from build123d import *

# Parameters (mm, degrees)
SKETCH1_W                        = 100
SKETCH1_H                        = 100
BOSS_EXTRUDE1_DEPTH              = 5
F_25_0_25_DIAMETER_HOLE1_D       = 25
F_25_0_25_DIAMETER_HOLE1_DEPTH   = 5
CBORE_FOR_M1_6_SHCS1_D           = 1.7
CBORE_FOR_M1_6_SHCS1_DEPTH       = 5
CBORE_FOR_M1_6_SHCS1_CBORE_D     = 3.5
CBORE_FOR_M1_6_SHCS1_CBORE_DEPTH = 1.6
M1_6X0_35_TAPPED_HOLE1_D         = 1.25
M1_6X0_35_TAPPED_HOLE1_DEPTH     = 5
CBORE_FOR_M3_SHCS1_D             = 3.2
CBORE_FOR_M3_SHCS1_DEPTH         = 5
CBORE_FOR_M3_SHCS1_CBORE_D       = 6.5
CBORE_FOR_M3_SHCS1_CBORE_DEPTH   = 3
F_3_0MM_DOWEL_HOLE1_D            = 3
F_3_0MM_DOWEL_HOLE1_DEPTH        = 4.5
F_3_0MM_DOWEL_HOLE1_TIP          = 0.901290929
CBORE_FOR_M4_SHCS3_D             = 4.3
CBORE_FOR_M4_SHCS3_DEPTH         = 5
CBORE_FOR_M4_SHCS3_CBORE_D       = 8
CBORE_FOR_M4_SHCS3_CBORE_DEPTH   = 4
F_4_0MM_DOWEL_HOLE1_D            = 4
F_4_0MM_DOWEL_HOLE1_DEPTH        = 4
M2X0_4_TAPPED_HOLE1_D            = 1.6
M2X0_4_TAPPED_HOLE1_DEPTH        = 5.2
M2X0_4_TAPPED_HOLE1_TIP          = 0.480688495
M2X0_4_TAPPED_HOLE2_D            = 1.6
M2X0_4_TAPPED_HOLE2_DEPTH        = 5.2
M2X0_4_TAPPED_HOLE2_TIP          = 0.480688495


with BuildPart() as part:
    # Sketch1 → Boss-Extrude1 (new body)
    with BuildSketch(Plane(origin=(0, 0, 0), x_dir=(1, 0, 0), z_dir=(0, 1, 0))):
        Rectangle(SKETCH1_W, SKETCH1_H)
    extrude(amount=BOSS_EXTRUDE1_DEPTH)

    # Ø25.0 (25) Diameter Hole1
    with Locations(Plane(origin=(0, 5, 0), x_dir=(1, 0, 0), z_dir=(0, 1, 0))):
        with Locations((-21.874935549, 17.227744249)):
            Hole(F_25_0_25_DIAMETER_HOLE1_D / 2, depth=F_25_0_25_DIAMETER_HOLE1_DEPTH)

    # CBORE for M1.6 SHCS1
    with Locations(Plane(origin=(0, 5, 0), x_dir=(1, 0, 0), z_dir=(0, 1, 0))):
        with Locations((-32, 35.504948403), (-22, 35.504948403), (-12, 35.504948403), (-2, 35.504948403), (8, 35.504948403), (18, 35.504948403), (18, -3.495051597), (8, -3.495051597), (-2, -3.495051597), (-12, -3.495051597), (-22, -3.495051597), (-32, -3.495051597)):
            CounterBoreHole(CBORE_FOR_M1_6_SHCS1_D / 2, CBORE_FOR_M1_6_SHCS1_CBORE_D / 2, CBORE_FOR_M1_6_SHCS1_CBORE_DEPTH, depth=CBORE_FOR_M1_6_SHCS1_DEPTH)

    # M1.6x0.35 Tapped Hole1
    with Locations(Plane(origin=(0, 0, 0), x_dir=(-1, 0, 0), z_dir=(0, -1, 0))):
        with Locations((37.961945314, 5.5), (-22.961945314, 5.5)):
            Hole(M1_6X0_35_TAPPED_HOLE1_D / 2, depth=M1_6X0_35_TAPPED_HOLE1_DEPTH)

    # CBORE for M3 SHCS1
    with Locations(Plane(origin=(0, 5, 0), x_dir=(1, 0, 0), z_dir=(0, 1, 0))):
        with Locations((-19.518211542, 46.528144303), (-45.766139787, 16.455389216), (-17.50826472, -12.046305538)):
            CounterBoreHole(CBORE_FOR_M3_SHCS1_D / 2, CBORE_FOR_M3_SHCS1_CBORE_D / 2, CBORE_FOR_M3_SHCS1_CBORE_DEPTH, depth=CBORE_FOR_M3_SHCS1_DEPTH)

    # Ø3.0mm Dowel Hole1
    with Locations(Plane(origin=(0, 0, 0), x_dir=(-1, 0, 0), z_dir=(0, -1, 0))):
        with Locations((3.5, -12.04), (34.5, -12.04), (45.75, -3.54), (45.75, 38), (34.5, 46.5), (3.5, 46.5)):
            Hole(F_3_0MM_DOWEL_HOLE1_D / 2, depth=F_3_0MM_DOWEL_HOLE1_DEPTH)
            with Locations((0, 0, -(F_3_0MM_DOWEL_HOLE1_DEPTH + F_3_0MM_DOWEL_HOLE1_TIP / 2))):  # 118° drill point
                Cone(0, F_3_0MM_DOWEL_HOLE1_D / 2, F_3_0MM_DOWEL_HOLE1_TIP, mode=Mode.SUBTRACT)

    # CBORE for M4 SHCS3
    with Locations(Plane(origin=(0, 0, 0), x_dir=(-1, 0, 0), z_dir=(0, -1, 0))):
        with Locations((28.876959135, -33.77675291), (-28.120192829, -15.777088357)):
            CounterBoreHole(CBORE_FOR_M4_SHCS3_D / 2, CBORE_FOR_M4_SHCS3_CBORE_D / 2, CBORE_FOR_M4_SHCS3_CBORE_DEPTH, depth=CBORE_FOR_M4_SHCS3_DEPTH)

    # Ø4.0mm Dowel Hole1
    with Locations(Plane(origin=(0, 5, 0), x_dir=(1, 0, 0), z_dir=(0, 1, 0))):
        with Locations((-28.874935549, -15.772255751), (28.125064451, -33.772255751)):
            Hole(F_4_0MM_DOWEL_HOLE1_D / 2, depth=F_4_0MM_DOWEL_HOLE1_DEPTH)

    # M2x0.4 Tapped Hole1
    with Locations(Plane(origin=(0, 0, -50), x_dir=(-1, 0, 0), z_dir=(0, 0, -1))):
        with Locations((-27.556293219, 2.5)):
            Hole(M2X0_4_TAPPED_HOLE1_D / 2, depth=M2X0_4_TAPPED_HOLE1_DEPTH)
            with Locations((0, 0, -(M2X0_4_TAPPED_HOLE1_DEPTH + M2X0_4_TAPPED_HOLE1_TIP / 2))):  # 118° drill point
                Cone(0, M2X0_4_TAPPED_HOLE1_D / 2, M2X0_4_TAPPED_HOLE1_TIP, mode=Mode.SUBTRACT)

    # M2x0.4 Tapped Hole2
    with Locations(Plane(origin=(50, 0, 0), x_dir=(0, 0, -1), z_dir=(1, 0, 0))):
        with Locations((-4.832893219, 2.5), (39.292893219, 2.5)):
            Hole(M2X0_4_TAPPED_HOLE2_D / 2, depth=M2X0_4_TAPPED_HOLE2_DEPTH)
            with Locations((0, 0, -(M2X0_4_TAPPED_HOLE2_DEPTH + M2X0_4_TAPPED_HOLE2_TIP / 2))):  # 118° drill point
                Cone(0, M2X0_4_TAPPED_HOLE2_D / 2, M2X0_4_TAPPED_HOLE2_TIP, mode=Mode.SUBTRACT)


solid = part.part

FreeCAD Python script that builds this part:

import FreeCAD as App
import Part
import Sketcher
Q = App.Units.Quantity


def add_polygon(sketch, points):
    """Adds a closed chain of lines whose ends are joined by coincident constraints."""
    first, n = sketch.GeometryCount, len(points)
    for a, b in zip(points, points[1:] + points[:1]):
        sketch.addGeometry(Part.LineSegment(App.Vector(*a, 0), App.Vector(*b, 0)), False)
    for i in range(n):
        sketch.addConstraint(Sketcher.Constraint("Coincident", first + i, 2, first + (i + 1) % n, 1))

doc = App.newDocument("Part")
body = doc.addObject("PartDesign::Body", "Body")

sketch1 = body.newObject("Sketcher::SketchObject", "Sketch")
sketch1.AttachmentSupport = (doc.getObject("XZ_Plane"), [""])
sketch1.MapMode = "FlatFace"
add_polygon(sketch1, [(-50, -50), (-50, 50), (50, 50), (50, -50)])
sketch1.addConstraint(Sketcher.Constraint("Vertical", 0))
sketch1.addConstraint(Sketcher.Constraint("Horizontal", 1))
sketch1.addConstraint(Sketcher.Constraint("Vertical", 2))
sketch1.addConstraint(Sketcher.Constraint("Horizontal", 3))
sketch1.addConstraint(Sketcher.Constraint("Symmetric", 0, 2, 2, 2, -1, 1))
sketch1.addConstraint(Sketcher.Constraint("Equal", 3, 0))
sketch1.addConstraint(Sketcher.Constraint("DistanceX", 1, 1, 1, 2, Q("100 mm")))
pad1 = body.newObject("PartDesign::Pad", "Pad")
pad1.Profile = sketch1
pad1.Length = 5
pad1.Reversed = True

sketch2 = body.newObject("Sketcher::SketchObject", "Sketch001")
sketch2.AttachmentSupport = (doc.getObject("XZ_Plane"), [""])
sketch2.MapMode = "FlatFace"
sketch2.AttachmentOffset = App.Placement(App.Vector(0, 0, -5), App.Rotation())
sketch2.addGeometry(Part.Circle(App.Vector(-22, -17, 0), App.Vector(0, 0, 1), 12), False)
sketch2.addConstraint(Sketcher.Constraint("Diameter", 0, Q("25 mm")))
sketch2.addConstraint(Sketcher.Constraint("DistanceX", 0, 3, -1, 1, Q("21.874936 mm")))
sketch2.addConstraint(Sketcher.Constraint("DistanceY", 0, 3, -1, 1, Q("17.227744 mm")))
doc.recompute()
hole = body.newObject("PartDesign::Hole", "Hole")
hole.Profile = sketch2
hole.ThreadType = "None"
hole.Diameter = 25
hole.DepthType = "Dimension"
hole.Depth = 5
hole.DrillPoint = "Flat"
hole.Reversed = True

sketch3 = body.newObject("Sketcher::SketchObject", "Sketch002")
sketch3.AttachmentSupport = (doc.getObject("XZ_Plane"), [""])
sketch3.MapMode = "FlatFace"
sketch3.AttachmentOffset = App.Placement(App.Vector(0, 0, -5), App.Rotation())
sketch3.addGeometry(Part.Circle(App.Vector(-32, -35.5, 0), App.Vector(0, 0, 1), 0.8), False)
sketch3.addGeometry(Part.Circle(App.Vector(-22, -35.5, 0), App.Vector(0, 0, 1), 0.8), False)
sketch3.addGeometry(Part.Circle(App.Vector(-12, -35.5, 0), App.Vector(0, 0, 1), 0.8), False)
sketch3.addGeometry(Part.Circle(App.Vector(-2, -35.5, 0), App.Vector(0, 0, 1), 0.8), False)
sketch3.addGeometry(Part.Circle(App.Vector(8, -35.5, 0), App.Vector(0, 0, 1), 0.8), False)
sketch3.addGeometry(Part.Circle(App.Vector(18, -35.5, 0), App.Vector(0, 0, 1), 0.8), False)
sketch3.addGeometry(Part.Circle(App.Vector(18, 3.5, 0), App.Vector(0, 0, 1), 0.8), False)
sketch3.addGeometry(Part.Circle(App.Vector(8, 3.5, 0), App.Vector(0, 0, 1), 0.8), False)
sketch3.addGeometry(Part.Circle(App.Vector(-2, 3.5, 0), App.Vector(0, 0, 1), 0.8), False)
sketch3.addGeometry(Part.Circle(App.Vector(-12, 3.5, 0), App.Vector(0, 0, 1), 0.8), False)
sketch3.addGeometry(Part.Circle(App.Vector(-22, 3.5, 0), App.Vector(0, 0, 1), 0.8), False)
sketch3.addGeometry(Part.Circle(App.Vector(-32, 3.5, 0), App.Vector(0, 0, 1), 0.8), False)
sketch3.addConstraint(Sketcher.Constraint("Equal", 0, 1))
sketch3.addConstraint(Sketcher.Constraint("Equal", 1, 2))
sketch3.addConstraint(Sketcher.Constraint("Equal", 2, 3))
sketch3.addConstraint(Sketcher.Constraint("Equal", 3, 4))
sketch3.addConstraint(Sketcher.Constraint("Equal", 4, 5))
sketch3.addConstraint(Sketcher.Constraint("Equal", 5, 6))
sketch3.addConstraint(Sketcher.Constraint("Equal", 6, 7))
sketch3.addConstraint(Sketcher.Constraint("Equal", 7, 8))
sketch3.addConstraint(Sketcher.Constraint("Equal", 8, 9))
sketch3.addConstraint(Sketcher.Constraint("Equal", 9, 10))
sketch3.addConstraint(Sketcher.Constraint("Equal", 10, 11))
sketch3.addConstraint(Sketcher.Constraint("Horizontal", 0, 3, 1, 3))
sketch3.addConstraint(Sketcher.Constraint("Horizontal", 1, 3, 2, 3))
sketch3.addConstraint(Sketcher.Constraint("Horizontal", 2, 3, 3, 3))
sketch3.addConstraint(Sketcher.Constraint("Horizontal", 3, 3, 4, 3))
sketch3.addConstraint(Sketcher.Constraint("Horizontal", 4, 3, 5, 3))
sketch3.addConstraint(Sketcher.Constraint("Horizontal", 6, 3, 7, 3))
sketch3.addConstraint(Sketcher.Constraint("Horizontal", 7, 3, 8, 3))
sketch3.addConstraint(Sketcher.Constraint("Horizontal", 8, 3, 9, 3))
sketch3.addConstraint(Sketcher.Constraint("Horizontal", 9, 3, 10, 3))
sketch3.addConstraint(Sketcher.Constraint("Horizontal", 10, 3, 11, 3))
sketch3.addConstraint(Sketcher.Constraint("Vertical", 5, 3, 6, 3))
sketch3.addConstraint(Sketcher.Constraint("Vertical", 4, 3, 7, 3))
sketch3.addConstraint(Sketcher.Constraint("Vertical", 3, 3, 8, 3))
sketch3.addConstraint(Sketcher.Constraint("Vertical", 2, 3, 9, 3))
sketch3.addConstraint(Sketcher.Constraint("Vertical", 1, 3, 10, 3))
sketch3.addConstraint(Sketcher.Constraint("Vertical", 0, 3, 11, 3))
sketch3.addConstraint(Sketcher.Constraint("Diameter", 0, Q("1.7 mm")))
sketch3.addConstraint(Sketcher.Constraint("DistanceX", 0, 3, -1, 1, Q("32 mm")))
sketch3.addConstraint(Sketcher.Constraint("DistanceX", 1, 3, -1, 1, Q("22 mm")))
sketch3.addConstraint(Sketcher.Constraint("DistanceX", 2, 3, -1, 1, Q("12 mm")))
sketch3.addConstraint(Sketcher.Constraint("DistanceX", 3, 3, -1, 1, Q("2 mm")))
sketch3.addConstraint(Sketcher.Constraint("DistanceX", -1, 1, 4, 3, Q("8 mm")))
sketch3.addConstraint(Sketcher.Constraint("DistanceX", -1, 1, 5, 3, Q("18 mm")))
sketch3.addConstraint(Sketcher.Constraint("DistanceY", 5, 3, 6, 3, Q("39 mm")))
sketch3.addConstraint(Sketcher.Constraint("DistanceY", 0, 3, -1, 1, Q("35.504948 mm")))
doc.recompute()
hole2 = body.newObject("PartDesign::Hole", "Hole001")
hole2.Profile = sketch3
hole2.ThreadType = "None"
hole2.Diameter = 1.7
hole2.DepthType = "Dimension"
hole2.Depth = 5
hole2.DrillPoint = "Flat"
hole2.HoleCutType = "Counterbore"
hole2.HoleCutDiameter = 3.5
hole2.HoleCutDepth = 1.6
hole2.Reversed = True

sketch4 = body.newObject("Sketcher::SketchObject", "Sketch003")
sketch4.AttachmentSupport = (doc.getObject("XZ_Plane"), [""])
sketch4.MapMode = "FlatFace"
sketch4.addGeometry(Part.Circle(App.Vector(-38, -5.5, 0), App.Vector(0, 0, 1), 0.6), False)
sketch4.addGeometry(Part.Circle(App.Vector(23, -5.5, 0), App.Vector(0, 0, 1), 0.6), False)
sketch4.addConstraint(Sketcher.Constraint("Equal", 0, 1))
sketch4.addConstraint(Sketcher.Constraint("Horizontal", 0, 3, 1, 3))
sketch4.addConstraint(Sketcher.Constraint("Diameter", 0, Q("1.25 mm")))
sketch4.addConstraint(Sketcher.Constraint("DistanceY", 0, 3, -1, 1, Q("5.5 mm")))
sketch4.addConstraint(Sketcher.Constraint("DistanceX", 0, 3, 1, 3, Q("60.923891 mm")))
sketch4.addConstraint(Sketcher.Constraint("DistanceX", 0, 3, -1, 1, Q("37.961945 mm")))
doc.recompute()
hole3 = body.newObject("PartDesign::Hole", "Hole002")
hole3.Profile = sketch4
hole3.ThreadType = "None"
hole3.Diameter = 1.25
hole3.DepthType = "Dimension"
hole3.Depth = 5
hole3.DrillPoint = "Flat"

sketch5 = body.newObject("Sketcher::SketchObject", "Sketch004")
sketch5.AttachmentSupport = (doc.getObject("XZ_Plane"), [""])
sketch5.MapMode = "FlatFace"
sketch5.AttachmentOffset = App.Placement(App.Vector(0, 0, -5), App.Rotation())
sketch5.addGeometry(Part.Circle(App.Vector(-19.5, -46.5, 0), App.Vector(0, 0, 1), 1.6), False)
sketch5.addGeometry(Part.Circle(App.Vector(-45.8, -16.5, 0), App.Vector(0, 0, 1), 1.6), False)
sketch5.addGeometry(Part.Circle(App.Vector(-17.5, 12, 0), App.Vector(0, 0, 1), 1.6), False)
sketch5.addConstraint(Sketcher.Constraint("Equal", 0, 1))
sketch5.addConstraint(Sketcher.Constraint("Equal", 1, 2))
sketch5.addConstraint(Sketcher.Constraint("Diameter", 0, Q("3.2 mm")))
sketch5.addConstraint(Sketcher.Constraint("DistanceX", 0, 3, -1, 1, Q("19.518212 mm")))
sketch5.addConstraint(Sketcher.Constraint("DistanceX", 1, 3, -1, 1, Q("45.76614 mm")))
sketch5.addConstraint(Sketcher.Constraint("DistanceY", 1, 3, -1, 1, Q("16.455389 mm")))
sketch5.addConstraint(Sketcher.Constraint("DistanceY", 0, 3, 2, 3, Q("58.57445 mm")))
sketch5.addConstraint(Sketcher.Constraint("DistanceY", 0, 3, -1, 1, Q("46.528144 mm")))
sketch5.addConstraint(Sketcher.Constraint("DistanceX", 2, 3, -1, 1, Q("17.508265 mm")))
doc.recompute()
hole4 = body.newObject("PartDesign::Hole", "Hole003")
hole4.Profile = sketch5
hole4.ThreadType = "None"
hole4.Diameter = 3.2
hole4.DepthType = "Dimension"
hole4.Depth = 5
hole4.DrillPoint = "Flat"
hole4.HoleCutType = "Counterbore"
hole4.HoleCutDiameter = 6.5
hole4.HoleCutDepth = 3
hole4.Reversed = True

sketch6 = body.newObject("Sketcher::SketchObject", "Sketch005")
sketch6.AttachmentSupport = (doc.getObject("XZ_Plane"), [""])
sketch6.MapMode = "FlatFace"
sketch6.addGeometry(Part.Circle(App.Vector(-3.5, 12, 0), App.Vector(0, 0, 1), 1.5), False)
sketch6.addGeometry(Part.Circle(App.Vector(-34.5, 12, 0), App.Vector(0, 0, 1), 1.5), False)
sketch6.addGeometry(Part.Circle(App.Vector(-45.8, 3.5, 0), App.Vector(0, 0, 1), 1.5), False)
sketch6.addGeometry(Part.Circle(App.Vector(-45.8, -38, 0), App.Vector(0, 0, 1), 1.5), False)
sketch6.addGeometry(Part.Circle(App.Vector(-34.5, -46.5, 0), App.Vector(0, 0, 1), 1.5), False)
sketch6.addGeometry(Part.Circle(App.Vector(-3.5, -46.5, 0), App.Vector(0, 0, 1), 1.5), False)
sketch6.addConstraint(Sketcher.Constraint("Equal", 0, 1))
sketch6.addConstraint(Sketcher.Constraint("Equal", 1, 2))
sketch6.addConstraint(Sketcher.Constraint("Equal", 2, 3))
sketch6.addConstraint(Sketcher.Constraint("Equal", 3, 4))
sketch6.addConstraint(Sketcher.Constraint("Equal", 4, 5))
sketch6.addConstraint(Sketcher.Constraint("Horizontal", 0, 3, 1, 3))
sketch6.addConstraint(Sketcher.Constraint("Horizontal", 4, 3, 5, 3))
sketch6.addConstraint(Sketcher.Constraint("Vertical", 2, 3, 3, 3))
sketch6.addConstraint(Sketcher.Constraint("Vertical", 1, 3, 4, 3))
sketch6.addConstraint(Sketcher.Constraint("Vertical", 0, 3, 5, 3))
sketch6.addConstraint(Sketcher.Constraint("Diameter", 0, Q("3 mm")))
sketch6.addConstraint(Sketcher.Constraint("DistanceY", 3, 3, -1, 1, Q("38 mm")))
sketch6.addConstraint(Sketcher.Constraint("DistanceX", 1, 3, 0, 3, Q("31 mm")))
sketch6.addConstraint(Sketcher.Constraint("DistanceX", 0, 3, -1, 1, Q("3.5 mm")))
sketch6.addConstraint(Sketcher.Constraint("DistanceY", 4, 3, -1, 1, Q("46.5 mm")))
sketch6.addConstraint(Sketcher.Constraint("DistanceY", 2, 3, 1, 3, Q("8.5 mm")))
sketch6.addConstraint(Sketcher.Constraint("DistanceY", -1, 1, 0, 3, Q("12.04 mm")))
sketch6.addConstraint(Sketcher.Constraint("DistanceX", 2, 3, -1, 1, Q("45.75 mm")))
doc.recompute()
hole5 = body.newObject("PartDesign::Hole", "Hole004")
hole5.Profile = sketch6
hole5.ThreadType = "None"
hole5.Diameter = 3
hole5.DepthType = "Dimension"
hole5.Depth = 4.5
hole5.DrillPoint = "Angled"
hole5.DrillPointAngle = 118

sketch7 = body.newObject("Sketcher::SketchObject", "Sketch006")
sketch7.AttachmentSupport = (doc.getObject("XZ_Plane"), [""])
sketch7.MapMode = "FlatFace"
sketch7.addGeometry(Part.Circle(App.Vector(-28.9, 33.8, 0), App.Vector(0, 0, 1), 2.1), False)
sketch7.addGeometry(Part.Circle(App.Vector(28.1, 15.8, 0), App.Vector(0, 0, 1), 2.1), False)
sketch7.addConstraint(Sketcher.Constraint("Equal", 0, 1))
sketch7.addConstraint(Sketcher.Constraint("Diameter", 0, Q("4.3 mm")))
sketch7.addConstraint(Sketcher.Constraint("DistanceX", 0, 3, -1, 1, Q("28.876959 mm")))
sketch7.addConstraint(Sketcher.Constraint("DistanceY", -1, 1, 1, 3, Q("15.777088 mm")))
sketch7.addConstraint(Sketcher.Constraint("DistanceX", 0, 3, 1, 3, Q("56.997152 mm")))
sketch7.addConstraint(Sketcher.Constraint("DistanceY", -1, 1, 0, 3, Q("33.776753 mm")))
doc.recompute()
hole6 = body.newObject("PartDesign::Hole", "Hole005")
hole6.Profile = sketch7
hole6.ThreadType = "None"
hole6.Diameter = 4.3
hole6.DepthType = "Dimension"
hole6.Depth = 5
hole6.DrillPoint = "Flat"
hole6.HoleCutType = "Counterbore"
hole6.HoleCutDiameter = 8
hole6.HoleCutDepth = 4

sketch8 = body.newObject("Sketcher::SketchObject", "Sketch007")
sketch8.AttachmentSupport = (doc.getObject("XZ_Plane"), [""])
sketch8.MapMode = "FlatFace"
sketch8.AttachmentOffset = App.Placement(App.Vector(0, 0, -5), App.Rotation())
sketch8.addGeometry(Part.Circle(App.Vector(-28.9, 15.8, 0), App.Vector(0, 0, 1), 2), False)
sketch8.addGeometry(Part.Circle(App.Vector(28.1, 33.8, 0), App.Vector(0, 0, 1), 2), False)
sketch8.addConstraint(Sketcher.Constraint("Equal", 0, 1))
sketch8.addConstraint(Sketcher.Constraint("Diameter", 0, Q("4 mm")))
sketch8.addConstraint(Sketcher.Constraint("DistanceX", 0, 3, 1, 3, Q("57 mm")))
sketch8.addConstraint(Sketcher.Constraint("DistanceY", 0, 3, 1, 3, Q("18 mm")))
sketch8.addConstraint(Sketcher.Constraint("DistanceX", 0, 3, -1, 1, Q("28.874936 mm")))
sketch8.addConstraint(Sketcher.Constraint("DistanceY", -1, 1, 0, 3, Q("15.772256 mm")))
doc.recompute()
hole7 = body.newObject("PartDesign::Hole", "Hole006")
hole7.Profile = sketch8
hole7.ThreadType = "None"
hole7.Diameter = 4
hole7.DepthType = "Dimension"
hole7.Depth = 4
hole7.DrillPoint = "Flat"
hole7.Reversed = True

sketch9 = body.newObject("Sketcher::SketchObject", "Sketch008")
sketch9.AttachmentSupport = (doc.getObject("XY_Plane"), [""])
sketch9.MapMode = "FlatFace"
sketch9.AttachmentOffset = App.Placement(App.Vector(0, 0, -50), App.Rotation())
sketch9.addGeometry(Part.Circle(App.Vector(27.6, 2.5, 0), App.Vector(0, 0, 1), 0.8), False)
sketch9.addConstraint(Sketcher.Constraint("Diameter", 0, Q("1.6 mm")))
sketch9.addConstraint(Sketcher.Constraint("DistanceY", -1, 1, 0, 3, Q("2.5 mm")))
sketch9.addConstraint(Sketcher.Constraint("DistanceX", -1, 1, 0, 3, Q("27.556293 mm")))
doc.recompute()
hole8 = body.newObject("PartDesign::Hole", "Hole007")
hole8.Profile = sketch9
hole8.ThreadType = "None"
hole8.Diameter = 1.6
hole8.DepthType = "Dimension"
hole8.Depth = 5.2
hole8.DrillPoint = "Angled"
hole8.DrillPointAngle = 118
hole8.Reversed = True

sketch10 = body.newObject("Sketcher::SketchObject", "Sketch009")
sketch10.AttachmentSupport = (doc.getObject("YZ_Plane"), [""])
sketch10.MapMode = "FlatFace"
sketch10.AttachmentOffset = App.Placement(App.Vector(0, 0, 50), App.Rotation())
sketch10.addGeometry(Part.Circle(App.Vector(2.5, 4.8, 0), App.Vector(0, 0, 1), 0.8), False)
sketch10.addGeometry(Part.Circle(App.Vector(2.5, -39.3, 0), App.Vector(0, 0, 1), 0.8), False)
sketch10.addConstraint(Sketcher.Constraint("Equal", 0, 1))
sketch10.addConstraint(Sketcher.Constraint("Vertical", 0, 3, 1, 3))
sketch10.addConstraint(Sketcher.Constraint("Diameter", 0, Q("1.6 mm")))
sketch10.addConstraint(Sketcher.Constraint("DistanceX", -1, 1, 0, 3, Q("2.5 mm")))
sketch10.addConstraint(Sketcher.Constraint("DistanceY", -1, 1, 0, 3, Q("4.832893 mm")))
sketch10.addConstraint(Sketcher.Constraint("DistanceY", 1, 3, -1, 1, Q("39.292893 mm")))
doc.recompute()
hole9 = body.newObject("PartDesign::Hole", "Hole008")
hole9.Profile = sketch10
hole9.ThreadType = "None"
hole9.Diameter = 1.6
hole9.DepthType = "Dimension"
hole9.Depth = 5.2
hole9.DrillPoint = "Angled"
hole9.DrillPointAngle = 118

doc.recompute()
